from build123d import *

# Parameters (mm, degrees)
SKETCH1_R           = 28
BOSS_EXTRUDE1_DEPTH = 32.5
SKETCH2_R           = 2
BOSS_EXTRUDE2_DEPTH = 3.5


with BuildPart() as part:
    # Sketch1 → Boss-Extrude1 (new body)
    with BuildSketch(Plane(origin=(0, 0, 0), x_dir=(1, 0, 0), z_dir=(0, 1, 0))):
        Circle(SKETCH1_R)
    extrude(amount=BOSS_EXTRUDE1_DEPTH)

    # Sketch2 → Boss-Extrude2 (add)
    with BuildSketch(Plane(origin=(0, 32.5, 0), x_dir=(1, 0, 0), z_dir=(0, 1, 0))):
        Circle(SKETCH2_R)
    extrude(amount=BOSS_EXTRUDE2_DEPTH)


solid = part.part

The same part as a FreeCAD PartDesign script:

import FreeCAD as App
import Part
import Sketcher

V = App.Vector

doc = App.newDocument("Part")
body = doc.addObject("PartDesign::Body", "Body")

# Sketch on XZ plane
sketch1 = body.newObject("Sketcher::SketchObject", "Sketch")
sketch1.AttachmentSupport = (doc.getObject("XZ_Plane"), [""])
sketch1.MapMode = "FlatFace"
sketch1.addGeometry(Part.Circle(V(0, 0, 0), V(0, 0, 1), 28), False)
sketch1.addConstraint([
    Sketcher.Constraint("Coincident", 0, 3, -1, 1),
    Sketcher.Constraint("Diameter", 0, 56.0),
])
pad1 = body.newObject("PartDesign::Pad", "Pad")
pad1.Profile = sketch1
pad1.Length = 32.5
pad1.Reversed = True

# Sketch on XZ plane
sketch2 = body.newObject("Sketcher::SketchObject", "Sketch001")
sketch2.AttachmentSupport = (doc.getObject("XZ_Plane"), [""])
sketch2.MapMode = "FlatFace"
sketch2.AttachmentOffset = App.Placement(V(0, 0, -32.5), App.Rotation())
sketch2.addGeometry(Part.Circle(V(0, 0, 0), V(0, 0, 1), 2), False)
sketch2.addConstraint([
    Sketcher.Constraint("Coincident", 0, 3, -1, 1),
    Sketcher.Constraint("Diameter", 0, 4.0),
])
pad2 = body.newObject("PartDesign::Pad", "Pad001")
pad2.Profile = sketch2
pad2.Length = 3.5
pad2.Reversed = True

doc.recompute()
